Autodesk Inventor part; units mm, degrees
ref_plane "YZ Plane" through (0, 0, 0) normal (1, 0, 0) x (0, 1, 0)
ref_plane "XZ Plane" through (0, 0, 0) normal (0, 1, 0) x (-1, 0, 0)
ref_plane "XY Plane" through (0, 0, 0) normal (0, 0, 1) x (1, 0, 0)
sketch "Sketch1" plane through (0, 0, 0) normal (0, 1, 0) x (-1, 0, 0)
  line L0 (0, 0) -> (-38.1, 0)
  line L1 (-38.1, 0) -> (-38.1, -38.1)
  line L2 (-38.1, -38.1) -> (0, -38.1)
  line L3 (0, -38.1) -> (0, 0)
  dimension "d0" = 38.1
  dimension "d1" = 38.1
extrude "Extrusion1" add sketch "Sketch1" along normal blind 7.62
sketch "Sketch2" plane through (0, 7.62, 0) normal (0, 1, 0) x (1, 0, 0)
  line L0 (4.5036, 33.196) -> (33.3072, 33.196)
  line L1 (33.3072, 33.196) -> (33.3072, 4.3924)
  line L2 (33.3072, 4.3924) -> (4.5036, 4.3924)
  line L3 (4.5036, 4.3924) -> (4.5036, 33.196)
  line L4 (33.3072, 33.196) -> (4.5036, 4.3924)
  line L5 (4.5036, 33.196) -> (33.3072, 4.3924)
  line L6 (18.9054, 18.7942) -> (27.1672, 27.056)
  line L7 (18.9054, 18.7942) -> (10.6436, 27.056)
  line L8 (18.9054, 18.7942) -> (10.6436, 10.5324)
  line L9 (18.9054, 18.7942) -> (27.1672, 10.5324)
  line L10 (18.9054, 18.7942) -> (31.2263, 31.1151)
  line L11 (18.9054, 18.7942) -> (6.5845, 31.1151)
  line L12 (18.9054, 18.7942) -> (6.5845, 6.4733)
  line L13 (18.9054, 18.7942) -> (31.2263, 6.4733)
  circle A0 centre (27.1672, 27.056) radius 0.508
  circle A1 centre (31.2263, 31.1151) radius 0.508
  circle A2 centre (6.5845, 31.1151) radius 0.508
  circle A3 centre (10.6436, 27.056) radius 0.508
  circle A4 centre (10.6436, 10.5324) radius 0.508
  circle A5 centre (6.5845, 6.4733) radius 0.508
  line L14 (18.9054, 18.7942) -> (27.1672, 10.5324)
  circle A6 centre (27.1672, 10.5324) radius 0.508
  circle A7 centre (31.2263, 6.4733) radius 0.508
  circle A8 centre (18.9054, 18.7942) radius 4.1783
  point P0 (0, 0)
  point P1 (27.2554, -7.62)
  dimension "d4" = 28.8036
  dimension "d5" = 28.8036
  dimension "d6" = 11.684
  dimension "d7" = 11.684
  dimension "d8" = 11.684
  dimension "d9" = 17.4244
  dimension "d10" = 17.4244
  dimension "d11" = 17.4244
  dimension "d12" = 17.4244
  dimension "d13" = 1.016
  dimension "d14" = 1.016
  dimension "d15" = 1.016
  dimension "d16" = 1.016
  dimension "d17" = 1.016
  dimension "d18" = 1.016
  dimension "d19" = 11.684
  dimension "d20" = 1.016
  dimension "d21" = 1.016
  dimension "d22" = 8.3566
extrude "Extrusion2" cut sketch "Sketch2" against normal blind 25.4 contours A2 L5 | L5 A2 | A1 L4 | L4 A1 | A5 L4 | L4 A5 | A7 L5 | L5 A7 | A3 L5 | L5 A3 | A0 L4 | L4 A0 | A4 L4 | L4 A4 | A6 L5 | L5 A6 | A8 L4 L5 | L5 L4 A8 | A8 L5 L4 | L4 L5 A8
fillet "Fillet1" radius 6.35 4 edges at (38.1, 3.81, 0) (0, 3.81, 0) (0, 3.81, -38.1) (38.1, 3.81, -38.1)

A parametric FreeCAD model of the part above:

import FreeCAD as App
import Part
import Sketcher
from FreeCAD import Vector
Q = App.Units.Quantity


def edges_at(feature, points):
    """Names of the edges that pass closest to the given points."""
    edges = feature.Shape.Edges
    near = lambda p: min(range(len(edges)), key=lambda i: edges[i].distToShape(Part.Vertex(*p))[0])
    return sorted({f"Edge{near(p) + 1}" for p in points})

doc = App.newDocument("Part")
body = doc.addObject("PartDesign::Body", "Body")

sketch1 = body.newObject("Sketcher::SketchObject", "Sketch")
sketch1.AttachmentSupport = (doc.getObject("XZ_Plane"), [""])
sketch1.MapMode = "FlatFace"
sketch1.addGeometry([
    Part.LineSegment(Vector(0, -38, 0), Vector(0, 0, 0)),
    Part.LineSegment(Vector(0, 0, 0), Vector(38, 0, 0)),
    Part.LineSegment(Vector(38, 0, 0), Vector(38, -38, 0)),
    Part.LineSegment(Vector(38, -38, 0), Vector(0, -38, 0)),
], False)
sketch1.addConstraint([
    Sketcher.Constraint("Coincident", 0, 2, 1, 1),
    Sketcher.Constraint("Coincident", 1, 2, 2, 1),
    Sketcher.Constraint("Coincident", 2, 2, 3, 1),
    Sketcher.Constraint("Coincident", 3, 2, 0, 1),
    Sketcher.Constraint("Vertical", 0),
    Sketcher.Constraint("Horizontal", 1),
    Sketcher.Constraint("Vertical", 2),
    Sketcher.Constraint("Horizontal", 3),
    Sketcher.Constraint("Coincident", 0, 2, -1, 1),
    Sketcher.Constraint("Equal", 3, 0),
    Sketcher.Constraint("DistanceX", 1, 1, 1, 2, Q("1.5 in")),
])
pad1 = body.newObject("PartDesign::Pad", "Pad")
pad1.Profile = sketch1
pad1.Length = Q("0.3 in")
pad1.Reversed = True

sketch2 = body.newObject("Sketcher::SketchObject", "Sketch001")
sketch2.AttachmentSupport = (doc.getObject("XZ_Plane"), [""])
sketch2.MapMode = "FlatFace"
sketch2.AttachmentOffset = App.Placement(Vector(0, 0, -0.3 * 25.4), App.Rotation())
sketch2.addGeometry([
    Part.Circle(Vector(6.6, -31.1, 0), Vector(0, 0, 1), 0.5),
    Part.Circle(Vector(31.2, -31.1, 0), Vector(0, 0, 1), 0.5),
    Part.Circle(Vector(6.6, -6.5, 0), Vector(0, 0, 1), 0.5),
    Part.Circle(Vector(31.2, -6.5, 0), Vector(0, 0, 1), 0.5),
    Part.Circle(Vector(10.6, -27.1, 0), Vector(0, 0, 1), 0.5),
    Part.Circle(Vector(27.2, -27.1, 0), Vector(0, 0, 1), 0.5),
    Part.Circle(Vector(10.6, -10.5, 0), Vector(0, 0, 1), 0.5),
    Part.Circle(Vector(27.2, -10.5, 0), Vector(0, 0, 1), 0.5),
    Part.Circle(Vector(18.9, -18.8, 0), Vector(0, 0, 1), 4.2),
], False)
sketch2.addConstraint([
    Sketcher.Constraint("Equal", 0, 1),
    Sketcher.Constraint("Equal", 1, 2),
    Sketcher.Constraint("Equal", 2, 3),
    Sketcher.Constraint("Equal", 3, 4),
    Sketcher.Constraint("Equal", 4, 5),
    Sketcher.Constraint("Equal", 5, 6),
    Sketcher.Constraint("Equal", 6, 7),
    Sketcher.Constraint("Horizontal", 0, 3, 1, 3),
    Sketcher.Constraint("Horizontal", 2, 3, 3, 3),
    Sketcher.Constraint("Horizontal", 4, 3, 5, 3),
    Sketcher.Constraint("Horizontal", 6, 3, 7, 3),
    Sketcher.Constraint("Vertical", 0, 3, 2, 3),
    Sketcher.Constraint("Vertical", 1, 3, 3, 3),
    Sketcher.Constraint("Vertical", 4, 3, 6, 3),
    Sketcher.Constraint("Vertical", 5, 3, 7, 3),
    Sketcher.Constraint("Diameter", 0, Q("0.04 in")),
    Sketcher.Constraint("Diameter", 8, Q("0.329 in")),
    Sketcher.Constraint("DistanceY", 0, 3, -1, 1, Q("1.225 in")),
    Sketcher.Constraint("DistanceY", 4, 3, -1, 1, Q("1.0652 in")),
    Sketcher.Constraint("DistanceX", -1, 1, 8, 3, Q("0.7443 in")),
    Sketcher.Constraint("DistanceX", 0, 3, 4, 3, Q("0.1598 in")),
    Sketcher.Constraint("DistanceX", 5, 3, 1, 3, Q("0.1598 in")),
    Sketcher.Constraint("DistanceY", 6, 3, 2, 3, Q("0.1598 in")),
    Sketcher.Constraint("DistanceX", -1, 1, 0, 3, 6.5845),
    Sketcher.Constraint("DistanceX", -1, 1, 1, 3, 31.2263),
    Sketcher.Constraint("DistanceY", 2, 3, -1, 1, 6.4733),
    Sketcher.Constraint("DistanceY", 8, 3, -1, 1, 18.7942),
])
pocket1 = body.newObject("PartDesign::Pocket", "Pocket")
pocket1.Profile = sketch2
pocket1.Length = Q("1 in")
pocket1.Reversed = True
doc.recompute()

fillet = body.newObject("PartDesign::Fillet", "Fillet")
fillet.Base = (pocket1, edges_at(pocket1, [
    (38.1, 3.81, 0),
    (0, 3.81, 0),
    (0, 3.81, -38.1),
    (38.1, 3.81, -38.1),
]))
fillet.Radius = Q("0.25 in")

doc.recompute()
